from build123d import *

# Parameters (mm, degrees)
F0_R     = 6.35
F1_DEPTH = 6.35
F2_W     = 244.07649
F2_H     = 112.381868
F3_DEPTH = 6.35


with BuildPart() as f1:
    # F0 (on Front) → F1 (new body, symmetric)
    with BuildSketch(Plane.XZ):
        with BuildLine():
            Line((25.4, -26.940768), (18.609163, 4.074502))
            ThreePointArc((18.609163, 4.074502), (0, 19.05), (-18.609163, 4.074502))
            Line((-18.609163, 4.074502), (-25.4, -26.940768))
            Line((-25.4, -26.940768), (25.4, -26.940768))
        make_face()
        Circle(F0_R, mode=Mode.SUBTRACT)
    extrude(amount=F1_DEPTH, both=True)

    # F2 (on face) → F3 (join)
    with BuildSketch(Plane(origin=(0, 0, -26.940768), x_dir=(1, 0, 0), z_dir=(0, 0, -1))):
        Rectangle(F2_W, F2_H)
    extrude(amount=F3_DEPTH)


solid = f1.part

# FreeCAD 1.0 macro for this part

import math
import FreeCAD as App
import Part
import Sketcher

V = App.Vector
Q = App.Units.Quantity

doc = App.newDocument("Part")
body = doc.addObject("PartDesign::Body", "Body")

# Sketch on XZ plane
sketch1 = body.newObject("Sketcher::SketchObject", "Sketch")
sketch1.AttachmentSupport = (doc.getObject("XZ_Plane"), [""])
sketch1.MapMode = "FlatFace"
sketch1.addGeometry([
    Part.LineSegment(V(25.4, -26.940768, 0), V(18.609163, 4.074502, 0)),  # 0
    Part.ArcOfCircle(Part.Circle(V(0, 0, 0), V(0, 0, 1), 19.05), math.radians(12.3501), math.radians(167.6499)),  # 1
    Part.LineSegment(V(-18.609163, 4.074502, 0), V(-25.4, -26.940768, 0)),  # 2
    Part.LineSegment(V(-25.4, -26.940768, 0), V(25.4, -26.940768, 0)),  # 3
    Part.Circle(V(0, 0, 0), V(0, 0, 1), 6.35),  # 4
], False)
sketch1.addConstraint([
    Sketcher.Constraint("Tangent", 0, 2, 1, 1),
    Sketcher.Constraint("Tangent", 1, 2, 2, 1),
    Sketcher.Constraint("Coincident", 2, 2, 3, 1),
    Sketcher.Constraint("Coincident", 3, 2, 0, 1),
    Sketcher.Constraint("Horizontal", 3),
    Sketcher.Constraint("Coincident", 1, 3, -1, 1),
    Sketcher.Constraint("Coincident", 4, 3, -1, 1),
    Sketcher.Constraint("Horizontal", 0, 2, 1, 2),
    Sketcher.Constraint("Diameter", 4, Q("0.5 in")),
    Sketcher.Constraint("DistanceX", 3, 1, 3, 2, Q("2 in")),
    Sketcher.Constraint("Radius", 1, Q("0.75 in")),
    Sketcher.Constraint("Distance", 0, Q("1.25 in")),
])
pad1 = body.newObject("PartDesign::Pad", "Pad")
pad1.Profile = sketch1
pad1.Length = Q("0.5 in")
pad1.Midplane = True

# Sketch on XY plane
sketch2 = body.newObject("Sketcher::SketchObject", "Sketch001")
sketch2.AttachmentSupport = (doc.getObject("XY_Plane"), [""])
sketch2.MapMode = "FlatFace"
sketch2.AttachmentOffset = App.Placement(V(0, 0, -26.940768), App.Rotation())
sketch2.addGeometry([
    Part.LineSegment(V(-122.038245, -56.190934, 0), V(-122.038245, 56.190934, 0)),
    Part.LineSegment(V(-122.038245, 56.190934, 0), V(122.038245, 56.190934, 0)),
    Part.LineSegment(V(122.038245, 56.190934, 0), V(122.038245, -56.190934, 0)),
    Part.LineSegment(V(122.038245, -56.190934, 0), V(-122.038245, -56.190934, 0)),
], False)
sketch2.addConstraint([
    Sketcher.Constraint("Coincident", 0, 2, 1, 1),
    Sketcher.Constraint("Coincident", 1, 2, 2, 1),
    Sketcher.Constraint("Coincident", 2, 2, 3, 1),
    Sketcher.Constraint("Coincident", 3, 2, 0, 1),
    Sketcher.Constraint("Vertical", 0),
    Sketcher.Constraint("Horizontal", 1),
    Sketcher.Constraint("Vertical", 2),
    Sketcher.Constraint("Horizontal", 3),
    Sketcher.Constraint("Symmetric", 0, 2, 2, 2, -1, 1),
    Sketcher.Constraint("DistanceX", 1, 1, 1, 2, 244.07649),
    Sketcher.Constraint("DistanceY", 0, 1, 0, 2, 112.381868),
])
pad2 = body.newObject("PartDesign::Pad", "Pad001")
pad2.Profile = sketch2
pad2.Length = Q("0.25 in")
pad2.Reversed = True

doc.recompute()
